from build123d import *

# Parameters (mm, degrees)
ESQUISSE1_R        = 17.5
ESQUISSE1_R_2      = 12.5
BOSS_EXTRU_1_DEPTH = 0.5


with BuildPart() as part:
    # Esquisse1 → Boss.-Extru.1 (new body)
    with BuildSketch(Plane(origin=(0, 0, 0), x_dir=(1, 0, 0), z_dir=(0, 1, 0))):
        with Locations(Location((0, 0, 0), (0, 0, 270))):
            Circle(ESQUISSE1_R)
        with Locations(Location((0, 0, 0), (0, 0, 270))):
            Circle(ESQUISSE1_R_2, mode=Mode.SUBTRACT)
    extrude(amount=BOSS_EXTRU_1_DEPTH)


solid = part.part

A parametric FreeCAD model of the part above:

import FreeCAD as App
import Part
import Sketcher

V = App.Vector
Q = App.Units.Quantity

doc = App.newDocument("Part")
body = doc.addObject("PartDesign::Body", "Body")

# Sketch on XZ plane
sketch1 = doc.addObject("Sketcher::SketchObject", "Sketch")
body.addObject(sketch1)
sketch1.AttachmentSupport = (doc.XZ_Plane, [""])
sketch1.MapMode = "FlatFace"
sketch1.addGeometry(Part.Circle(V(0, 0, 0), V(0, 0, 1), 18), False)
sketch1.addGeometry(Part.Circle(V(0, 0, 0), V(0, 0, 1), 12), False)
sketch1.addConstraint(Sketcher.Constraint("Coincident", 0, 3, -1, 1))
sketch1.addConstraint(Sketcher.Constraint("Coincident", 1, 3, -1, 1))
sketch1.addConstraint(Sketcher.Constraint("Diameter", 0, Q("35 mm")))
sketch1.addConstraint(Sketcher.Constraint("Diameter", 1, Q("25 mm")))
pad1 = doc.addObject("PartDesign::Pad", "Pad")
body.addObject(pad1)
pad1.Profile = sketch1
pad1.Length = 0.5
pad1.Reversed = True

doc.recompute()
